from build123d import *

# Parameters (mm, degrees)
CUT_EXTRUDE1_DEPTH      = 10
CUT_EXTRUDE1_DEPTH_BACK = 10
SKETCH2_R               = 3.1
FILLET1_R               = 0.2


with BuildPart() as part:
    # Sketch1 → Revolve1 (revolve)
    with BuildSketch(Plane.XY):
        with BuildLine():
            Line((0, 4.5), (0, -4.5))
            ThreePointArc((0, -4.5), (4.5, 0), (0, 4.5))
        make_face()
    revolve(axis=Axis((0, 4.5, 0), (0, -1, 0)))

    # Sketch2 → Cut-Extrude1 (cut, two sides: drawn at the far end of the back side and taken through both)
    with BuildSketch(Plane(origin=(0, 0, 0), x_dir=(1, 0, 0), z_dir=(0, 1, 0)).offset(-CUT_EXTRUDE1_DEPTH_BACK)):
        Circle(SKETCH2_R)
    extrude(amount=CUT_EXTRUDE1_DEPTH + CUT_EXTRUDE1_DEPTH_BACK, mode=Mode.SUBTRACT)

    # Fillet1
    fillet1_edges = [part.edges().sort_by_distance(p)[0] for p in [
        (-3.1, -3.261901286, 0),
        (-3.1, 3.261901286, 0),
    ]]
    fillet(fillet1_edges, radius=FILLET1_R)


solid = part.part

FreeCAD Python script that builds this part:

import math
import FreeCAD as App
import Part
import Sketcher
from FreeCAD import Vector


def edges_at(feature, points):
    """Names of the edges that pass closest to the given points."""
    edges = feature.Shape.Edges
    near = lambda p: min(range(len(edges)), key=lambda i: edges[i].distToShape(Part.Vertex(*p))[0])
    return sorted({f"Edge{near(p) + 1}" for p in points})

doc = App.newDocument("Part")
body = doc.addObject("PartDesign::Body", "Body")

sketch1 = doc.addObject("Sketcher::SketchObject", "Sketch")
body.addObject(sketch1)
sketch1.AttachmentSupport = (doc.XY_Plane, [""])
sketch1.MapMode = "FlatFace"
sketch1.addGeometry([
    Part.LineSegment(Vector(0, 4.5, 0), Vector(0, -4.5, 0)),
    Part.ArcOfCircle(Part.Circle(Vector(0, 0, 0), Vector(0, 0, 1), 4.5), math.radians(-90), math.radians(90)),
], False)
sketch1.addConstraint([
    Sketcher.Constraint("Coincident", 0, 1, 1, 2),
    Sketcher.Constraint("Coincident", 1, 1, 0, 2),
    Sketcher.Constraint("Vertical", 0),
    Sketcher.Constraint("Coincident", 1, 3, -1, 1),
    Sketcher.Constraint("PointOnObject", 0, 1, -2),
    Sketcher.Constraint("Radius", 1, 4.5),
])
revolution = doc.addObject("PartDesign::Revolution", "Revolution")
body.addObject(revolution)
revolution.Profile = sketch1
revolution.ReferenceAxis = (sketch1, ["V_Axis"])
revolution.Angle = 360

sketch2 = doc.addObject("Sketcher::SketchObject", "Sketch001")
body.addObject(sketch2)
sketch2.AttachmentSupport = (doc.XZ_Plane, [""])
sketch2.MapMode = "FlatFace"
sketch2.addGeometry(Part.Circle(Vector(0, 0, 0), Vector(0, 0, 1), 3.1), False)
sketch2.addConstraint([
    Sketcher.Constraint("Coincident", 0, 3, -1, 1),
    Sketcher.Constraint("Diameter", 0, 6.2),
])
pocket1 = doc.addObject("PartDesign::Pocket", "Pocket")
body.addObject(pocket1)
pocket1.Profile = sketch2
pocket1.Type = "ThroughAll"
pocket1.Midplane = True
doc.recompute()

fillet = doc.addObject("PartDesign::Fillet", "Fillet")
body.addObject(fillet)
fillet.Base = (pocket1, edges_at(pocket1, [(-3.1, -3.262, 0), (-3.1, 3.262, 0)]))
fillet.Radius = 0.2

doc.recompute()
